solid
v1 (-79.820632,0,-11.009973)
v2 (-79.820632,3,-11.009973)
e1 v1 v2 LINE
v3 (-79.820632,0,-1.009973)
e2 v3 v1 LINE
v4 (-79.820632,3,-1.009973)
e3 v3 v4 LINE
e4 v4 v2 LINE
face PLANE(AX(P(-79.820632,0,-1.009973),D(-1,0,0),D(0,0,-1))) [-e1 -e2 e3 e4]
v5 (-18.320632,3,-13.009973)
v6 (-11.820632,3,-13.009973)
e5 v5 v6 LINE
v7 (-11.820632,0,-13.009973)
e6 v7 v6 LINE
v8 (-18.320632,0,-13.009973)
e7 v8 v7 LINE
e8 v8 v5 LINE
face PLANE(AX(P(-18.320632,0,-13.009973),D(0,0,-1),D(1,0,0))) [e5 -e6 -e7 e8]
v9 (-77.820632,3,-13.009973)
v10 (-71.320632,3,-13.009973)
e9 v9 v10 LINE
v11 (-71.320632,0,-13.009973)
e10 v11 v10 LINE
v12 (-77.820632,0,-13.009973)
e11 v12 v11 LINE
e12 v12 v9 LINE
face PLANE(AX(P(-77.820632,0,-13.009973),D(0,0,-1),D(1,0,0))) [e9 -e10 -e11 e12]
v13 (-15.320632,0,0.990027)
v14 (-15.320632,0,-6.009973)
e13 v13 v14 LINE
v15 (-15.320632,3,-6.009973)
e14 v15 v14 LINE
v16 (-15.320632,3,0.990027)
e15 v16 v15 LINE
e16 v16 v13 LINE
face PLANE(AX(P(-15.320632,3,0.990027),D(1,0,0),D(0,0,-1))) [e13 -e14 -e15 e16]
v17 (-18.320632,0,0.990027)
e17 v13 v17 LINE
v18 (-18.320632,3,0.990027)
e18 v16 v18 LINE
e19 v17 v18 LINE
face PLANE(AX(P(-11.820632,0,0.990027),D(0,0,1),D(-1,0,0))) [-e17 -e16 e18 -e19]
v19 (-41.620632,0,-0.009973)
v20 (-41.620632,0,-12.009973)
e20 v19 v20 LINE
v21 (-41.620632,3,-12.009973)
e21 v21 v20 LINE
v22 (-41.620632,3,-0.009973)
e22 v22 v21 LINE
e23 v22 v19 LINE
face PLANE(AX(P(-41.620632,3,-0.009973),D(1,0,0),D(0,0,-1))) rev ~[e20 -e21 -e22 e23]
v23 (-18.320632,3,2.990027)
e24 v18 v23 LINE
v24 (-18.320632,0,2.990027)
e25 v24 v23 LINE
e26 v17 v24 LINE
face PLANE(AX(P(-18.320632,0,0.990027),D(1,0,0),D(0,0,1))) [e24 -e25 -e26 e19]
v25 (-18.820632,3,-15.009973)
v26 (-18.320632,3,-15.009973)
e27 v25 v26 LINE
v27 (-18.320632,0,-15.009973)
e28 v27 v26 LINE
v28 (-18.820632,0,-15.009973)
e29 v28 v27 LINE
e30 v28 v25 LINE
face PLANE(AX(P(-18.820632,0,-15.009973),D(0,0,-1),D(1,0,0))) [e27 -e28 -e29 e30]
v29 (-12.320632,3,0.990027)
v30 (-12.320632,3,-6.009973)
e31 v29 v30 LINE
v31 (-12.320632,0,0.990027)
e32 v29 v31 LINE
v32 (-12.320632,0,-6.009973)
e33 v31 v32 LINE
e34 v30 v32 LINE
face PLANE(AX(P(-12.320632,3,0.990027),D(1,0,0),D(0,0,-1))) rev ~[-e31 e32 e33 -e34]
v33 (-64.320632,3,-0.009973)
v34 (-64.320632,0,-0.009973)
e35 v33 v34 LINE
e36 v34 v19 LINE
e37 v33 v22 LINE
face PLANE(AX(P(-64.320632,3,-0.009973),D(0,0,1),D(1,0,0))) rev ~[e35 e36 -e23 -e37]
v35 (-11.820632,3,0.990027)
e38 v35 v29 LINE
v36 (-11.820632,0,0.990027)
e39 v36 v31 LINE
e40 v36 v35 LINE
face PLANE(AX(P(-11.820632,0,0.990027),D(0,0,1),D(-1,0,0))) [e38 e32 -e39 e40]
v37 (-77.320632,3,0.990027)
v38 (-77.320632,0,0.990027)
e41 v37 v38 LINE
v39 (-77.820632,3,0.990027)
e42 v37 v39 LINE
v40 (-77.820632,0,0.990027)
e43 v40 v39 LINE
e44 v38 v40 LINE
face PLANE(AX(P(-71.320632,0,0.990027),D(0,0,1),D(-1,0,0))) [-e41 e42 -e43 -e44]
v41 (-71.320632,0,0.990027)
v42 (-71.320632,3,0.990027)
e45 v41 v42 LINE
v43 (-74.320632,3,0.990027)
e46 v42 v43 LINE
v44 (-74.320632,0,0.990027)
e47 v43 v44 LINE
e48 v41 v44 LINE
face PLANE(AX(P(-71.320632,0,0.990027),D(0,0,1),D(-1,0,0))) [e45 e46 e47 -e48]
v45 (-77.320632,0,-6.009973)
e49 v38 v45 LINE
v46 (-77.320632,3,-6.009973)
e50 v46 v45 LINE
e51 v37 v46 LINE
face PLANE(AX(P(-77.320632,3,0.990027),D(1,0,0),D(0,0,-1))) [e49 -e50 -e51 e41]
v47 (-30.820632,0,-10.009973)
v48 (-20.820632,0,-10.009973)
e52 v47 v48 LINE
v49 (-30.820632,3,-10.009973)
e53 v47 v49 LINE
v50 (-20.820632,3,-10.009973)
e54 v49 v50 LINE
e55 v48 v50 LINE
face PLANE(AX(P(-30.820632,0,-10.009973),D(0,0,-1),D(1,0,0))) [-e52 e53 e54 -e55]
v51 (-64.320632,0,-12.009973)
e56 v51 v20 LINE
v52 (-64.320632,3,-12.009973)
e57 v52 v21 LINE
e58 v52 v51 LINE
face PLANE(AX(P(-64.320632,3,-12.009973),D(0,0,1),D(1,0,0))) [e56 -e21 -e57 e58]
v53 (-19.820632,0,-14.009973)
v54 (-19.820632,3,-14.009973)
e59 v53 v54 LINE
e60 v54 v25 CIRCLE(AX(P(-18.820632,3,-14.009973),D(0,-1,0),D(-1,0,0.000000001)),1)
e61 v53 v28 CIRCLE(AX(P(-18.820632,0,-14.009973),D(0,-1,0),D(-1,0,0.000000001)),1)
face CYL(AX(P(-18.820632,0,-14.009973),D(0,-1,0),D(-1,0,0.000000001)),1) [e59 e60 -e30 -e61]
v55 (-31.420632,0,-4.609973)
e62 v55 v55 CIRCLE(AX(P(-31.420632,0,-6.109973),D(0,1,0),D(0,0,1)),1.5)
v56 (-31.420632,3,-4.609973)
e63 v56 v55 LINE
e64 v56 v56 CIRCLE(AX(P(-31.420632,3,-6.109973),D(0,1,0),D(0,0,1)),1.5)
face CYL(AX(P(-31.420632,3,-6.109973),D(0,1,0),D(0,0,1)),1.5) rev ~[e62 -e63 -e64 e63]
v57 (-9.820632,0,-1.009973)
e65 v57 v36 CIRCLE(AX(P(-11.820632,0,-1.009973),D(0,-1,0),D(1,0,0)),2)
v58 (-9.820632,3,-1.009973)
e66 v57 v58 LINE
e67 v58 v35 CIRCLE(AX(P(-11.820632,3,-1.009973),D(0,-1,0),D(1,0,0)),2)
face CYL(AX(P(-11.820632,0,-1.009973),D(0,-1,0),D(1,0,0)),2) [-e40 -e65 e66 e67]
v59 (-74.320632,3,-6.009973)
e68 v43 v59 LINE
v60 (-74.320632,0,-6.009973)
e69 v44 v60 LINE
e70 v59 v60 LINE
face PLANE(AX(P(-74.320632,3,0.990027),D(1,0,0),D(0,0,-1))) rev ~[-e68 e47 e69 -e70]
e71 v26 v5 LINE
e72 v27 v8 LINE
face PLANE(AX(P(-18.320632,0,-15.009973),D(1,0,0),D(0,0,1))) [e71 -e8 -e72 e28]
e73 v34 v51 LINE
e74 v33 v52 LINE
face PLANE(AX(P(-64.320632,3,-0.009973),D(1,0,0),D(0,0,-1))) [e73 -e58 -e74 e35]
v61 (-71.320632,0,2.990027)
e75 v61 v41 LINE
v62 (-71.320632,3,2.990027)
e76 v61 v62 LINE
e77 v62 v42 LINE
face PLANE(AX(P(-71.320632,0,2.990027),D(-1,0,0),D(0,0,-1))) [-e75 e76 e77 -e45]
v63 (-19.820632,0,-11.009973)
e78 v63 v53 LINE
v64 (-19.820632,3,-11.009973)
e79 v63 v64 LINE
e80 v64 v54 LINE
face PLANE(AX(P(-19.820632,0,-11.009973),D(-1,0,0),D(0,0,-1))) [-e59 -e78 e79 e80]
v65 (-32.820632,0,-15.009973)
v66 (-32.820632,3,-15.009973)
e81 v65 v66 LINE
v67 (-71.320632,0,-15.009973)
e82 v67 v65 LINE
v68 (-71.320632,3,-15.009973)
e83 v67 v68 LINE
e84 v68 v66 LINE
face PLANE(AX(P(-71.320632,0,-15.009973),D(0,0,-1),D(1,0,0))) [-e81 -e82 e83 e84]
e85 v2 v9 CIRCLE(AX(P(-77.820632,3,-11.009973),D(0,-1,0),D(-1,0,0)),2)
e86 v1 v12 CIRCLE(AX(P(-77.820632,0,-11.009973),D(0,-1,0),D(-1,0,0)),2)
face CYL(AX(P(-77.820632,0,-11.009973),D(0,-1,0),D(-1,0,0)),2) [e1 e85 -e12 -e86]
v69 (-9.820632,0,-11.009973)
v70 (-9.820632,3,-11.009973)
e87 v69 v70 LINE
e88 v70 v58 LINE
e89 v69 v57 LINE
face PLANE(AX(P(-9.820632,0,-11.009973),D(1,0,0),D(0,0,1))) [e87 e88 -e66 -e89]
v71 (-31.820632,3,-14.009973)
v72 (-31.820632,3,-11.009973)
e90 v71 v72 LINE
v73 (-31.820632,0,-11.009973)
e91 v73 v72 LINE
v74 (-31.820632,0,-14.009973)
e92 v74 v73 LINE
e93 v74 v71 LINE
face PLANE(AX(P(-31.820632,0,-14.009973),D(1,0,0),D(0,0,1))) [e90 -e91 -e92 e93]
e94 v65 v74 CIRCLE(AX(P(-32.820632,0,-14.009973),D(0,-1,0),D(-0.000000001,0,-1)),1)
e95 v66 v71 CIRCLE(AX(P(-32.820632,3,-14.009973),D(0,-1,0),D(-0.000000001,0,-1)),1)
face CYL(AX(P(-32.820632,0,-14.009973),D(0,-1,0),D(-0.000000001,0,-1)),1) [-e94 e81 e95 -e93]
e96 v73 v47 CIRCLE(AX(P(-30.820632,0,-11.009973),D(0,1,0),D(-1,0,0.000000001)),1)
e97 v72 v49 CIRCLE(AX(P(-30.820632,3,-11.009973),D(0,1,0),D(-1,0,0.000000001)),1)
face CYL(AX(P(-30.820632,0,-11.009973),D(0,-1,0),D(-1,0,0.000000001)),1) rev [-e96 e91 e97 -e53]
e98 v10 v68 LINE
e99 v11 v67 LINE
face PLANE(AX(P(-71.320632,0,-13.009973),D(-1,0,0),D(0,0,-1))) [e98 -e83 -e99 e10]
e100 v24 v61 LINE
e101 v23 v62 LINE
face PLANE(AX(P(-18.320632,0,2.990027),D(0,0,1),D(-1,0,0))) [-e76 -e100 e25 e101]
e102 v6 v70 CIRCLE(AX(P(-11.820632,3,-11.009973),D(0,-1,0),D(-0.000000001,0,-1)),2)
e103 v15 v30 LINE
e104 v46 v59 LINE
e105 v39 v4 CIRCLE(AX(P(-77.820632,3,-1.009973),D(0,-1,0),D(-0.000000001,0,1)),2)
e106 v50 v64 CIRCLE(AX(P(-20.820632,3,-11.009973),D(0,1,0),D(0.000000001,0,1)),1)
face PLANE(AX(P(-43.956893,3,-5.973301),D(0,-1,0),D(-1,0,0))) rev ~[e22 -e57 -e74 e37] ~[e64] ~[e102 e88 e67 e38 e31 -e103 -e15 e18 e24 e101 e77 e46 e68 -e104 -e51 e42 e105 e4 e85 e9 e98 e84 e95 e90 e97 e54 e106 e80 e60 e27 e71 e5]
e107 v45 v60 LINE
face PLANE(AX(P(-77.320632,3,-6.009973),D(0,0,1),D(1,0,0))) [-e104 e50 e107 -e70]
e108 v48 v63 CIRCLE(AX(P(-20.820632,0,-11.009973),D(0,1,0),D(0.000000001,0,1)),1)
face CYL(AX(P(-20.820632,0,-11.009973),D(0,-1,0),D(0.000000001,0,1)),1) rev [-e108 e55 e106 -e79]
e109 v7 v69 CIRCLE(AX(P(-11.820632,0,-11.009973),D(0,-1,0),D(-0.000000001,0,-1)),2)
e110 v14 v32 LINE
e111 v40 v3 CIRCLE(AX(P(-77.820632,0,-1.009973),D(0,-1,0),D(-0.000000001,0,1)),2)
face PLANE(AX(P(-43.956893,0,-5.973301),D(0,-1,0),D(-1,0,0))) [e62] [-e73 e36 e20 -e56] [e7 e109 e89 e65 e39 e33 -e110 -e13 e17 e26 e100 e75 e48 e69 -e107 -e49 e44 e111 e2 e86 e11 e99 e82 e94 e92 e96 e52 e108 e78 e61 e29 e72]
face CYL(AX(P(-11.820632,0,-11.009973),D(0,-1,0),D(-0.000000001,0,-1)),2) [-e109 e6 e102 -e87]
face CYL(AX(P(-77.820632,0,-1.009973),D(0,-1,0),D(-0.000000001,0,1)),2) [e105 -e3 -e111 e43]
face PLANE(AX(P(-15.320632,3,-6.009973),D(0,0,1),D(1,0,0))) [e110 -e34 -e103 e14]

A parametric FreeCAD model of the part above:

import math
import FreeCAD as App
import Part
import Sketcher

V = App.Vector


def add_polygon(sketch, points):
    """Adds a closed chain of lines whose ends are joined by coincident constraints."""
    first, n = sketch.GeometryCount, len(points)
    for a, b in zip(points, points[1:] + points[:1]):
        sketch.addGeometry(Part.LineSegment(App.Vector(*a, 0), App.Vector(*b, 0)), False)
    for i in range(n):
        sketch.addConstraint(Sketcher.Constraint("Coincident", first + i, 2, first + (i + 1) % n, 1))

doc = App.newDocument("Part")
body = doc.addObject("PartDesign::Body", "Body")

sketch1 = body.newObject("Sketcher::SketchObject", "Sketch")
sketch1.AttachmentSupport = (doc.getObject("XZ_Plane"), [""])
sketch1.MapMode = "FlatFace"
sketch1.addGeometry([
    Part.LineSegment(V(-9.8, -1, 0), V(-9.8, -11, 0)),
    Part.ArcOfCircle(Part.Circle(V(-11.8, -11, 0), V(0, 0, 1), 2), math.radians(-90), math.radians(0)),
    Part.LineSegment(V(-11.8, -13, 0), V(-18.3, -13, 0)),
    Part.LineSegment(V(-18.3, -13, 0), V(-18.3, -15, 0)),
    Part.LineSegment(V(-18.3, -15, 0), V(-18.8, -15, 0)),
    Part.ArcOfCircle(Part.Circle(V(-18.8, -14, 0), V(0, 0, 1), 1), math.radians(180), math.radians(270)),
    Part.LineSegment(V(-19.8, -14, 0), V(-19.8, -11, 0)),
    Part.ArcOfCircle(Part.Circle(V(-20.8, -11, 0), V(0, 0, 1), 1), math.radians(0), math.radians(90)),
    Part.LineSegment(V(-20.8, -10, 0), V(-30.8, -10, 0)),
    Part.ArcOfCircle(Part.Circle(V(-30.8, -11, 0), V(0, 0, 1), 1), math.radians(90), math.radians(180)),
    Part.LineSegment(V(-31.8, -11, 0), V(-31.8, -14, 0)),
    Part.ArcOfCircle(Part.Circle(V(-32.8, -14, 0), V(0, 0, 1), 1), math.radians(-90), math.radians(0)),
    Part.LineSegment(V(-32.8, -15, 0), V(-71.3, -15, 0)),
    Part.LineSegment(V(-71.3, -15, 0), V(-71.3, -13, 0)),
    Part.LineSegment(V(-71.3, -13, 0), V(-77.8, -13, 0)),
    Part.ArcOfCircle(Part.Circle(V(-77.8, -11, 0), V(0, 0, 1), 2), math.radians(180), math.radians(270)),
    Part.LineSegment(V(-79.8, -11, 0), V(-79.8, -1, 0)),
    Part.ArcOfCircle(Part.Circle(V(-77.8, -1, 0), V(0, 0, 1), 2), math.radians(90), math.radians(180)),
    Part.LineSegment(V(-77.8, 1, 0), V(-71.3, 1, 0)),
    Part.LineSegment(V(-71.3, 1, 0), V(-71.3, 3, 0)),
    Part.LineSegment(V(-71.3, 3, 0), V(-18.3, 3, 0)),
    Part.LineSegment(V(-18.3, 3, 0), V(-18.3, 1, 0)),
    Part.LineSegment(V(-18.3, 1, 0), V(-11.8, 1, 0)),
    Part.ArcOfCircle(Part.Circle(V(-11.8, -1, 0), V(0, 0, 1), 2), math.radians(0), math.radians(90)),
], False)
sketch1.addConstraint([
    Sketcher.Constraint("Tangent", 0, 2, 1, 2),
    Sketcher.Constraint("Tangent", 1, 1, 2, 1),
    Sketcher.Constraint("Coincident", 2, 2, 3, 1),
    Sketcher.Constraint("Coincident", 3, 2, 4, 1),
    Sketcher.Constraint("Tangent", 4, 2, 5, 2),
    Sketcher.Constraint("Tangent", 5, 1, 6, 1),
    Sketcher.Constraint("Tangent", 6, 2, 7, 1),
    Sketcher.Constraint("Tangent", 7, 2, 8, 1),
    Sketcher.Constraint("Tangent", 8, 2, 9, 1),
    Sketcher.Constraint("Tangent", 9, 2, 10, 1),
    Sketcher.Constraint("Tangent", 10, 2, 11, 2),
    Sketcher.Constraint("Tangent", 11, 1, 12, 1),
    Sketcher.Constraint("Coincident", 12, 2, 13, 1),
    Sketcher.Constraint("Coincident", 13, 2, 14, 1),
    Sketcher.Constraint("Tangent", 14, 2, 15, 2),
    Sketcher.Constraint("Tangent", 15, 1, 16, 1),
    Sketcher.Constraint("Tangent", 16, 2, 17, 2),
    Sketcher.Constraint("Tangent", 17, 1, 18, 1),
    Sketcher.Constraint("Coincident", 18, 2, 19, 1),
    Sketcher.Constraint("Coincident", 19, 2, 20, 1),
    Sketcher.Constraint("Coincident", 20, 2, 21, 1),
    Sketcher.Constraint("Coincident", 21, 2, 22, 1),
    Sketcher.Constraint("Tangent", 22, 2, 23, 2),
    Sketcher.Constraint("Tangent", 23, 1, 0, 1),
    Sketcher.Constraint("Vertical", 0),
    Sketcher.Constraint("Horizontal", 2),
    Sketcher.Constraint("Vertical", 3),
    Sketcher.Constraint("Horizontal", 4),
    Sketcher.Constraint("Vertical", 6),
    Sketcher.Constraint("Horizontal", 8),
    Sketcher.Constraint("Vertical", 10),
    Sketcher.Constraint("Horizontal", 12),
    Sketcher.Constraint("Vertical", 13),
    Sketcher.Constraint("Horizontal", 14),
    Sketcher.Constraint("Vertical", 16),
    Sketcher.Constraint("Horizontal", 18),
    Sketcher.Constraint("Vertical", 19),
    Sketcher.Constraint("Horizontal", 20),
    Sketcher.Constraint("Vertical", 21),
    Sketcher.Constraint("Horizontal", 22),
    Sketcher.Constraint("Equal", 5, 7),
    Sketcher.Constraint("Equal", 7, 9),
    Sketcher.Constraint("Equal", 9, 11),
    Sketcher.Constraint("Equal", 1, 15),
    Sketcher.Constraint("Equal", 15, 17),
    Sketcher.Constraint("Equal", 17, 23),
    Sketcher.Constraint("Horizontal", 1, 3, 7, 3),
    Sketcher.Constraint("Horizontal", 5, 3, 11, 3),
    Sketcher.Constraint("Horizontal", 9, 3, 15, 3),
    Sketcher.Constraint("Horizontal", 17, 3, 23, 3),
    Sketcher.Constraint("Vertical", 13, 2, 18, 2),
    Sketcher.Constraint("Vertical", 3, 2, 20, 2),
    Sketcher.Constraint("Equal", 2, 14),
    Sketcher.Constraint("Equal", 8, 0),
    Sketcher.Constraint("Equal", 13, 19),
    Sketcher.Constraint("Radius", 1, 2.0),
    Sketcher.Constraint("Radius", 5, 1.0),
    Sketcher.Constraint("DistanceX", 8, 2, 8, 1, 10.0),
    Sketcher.Constraint("DistanceX", 20, 1, 20, 2, 53.0),
    Sketcher.Constraint("DistanceY", 3, 2, 3, 1, 2.0),
    Sketcher.Constraint("DistanceX", 2, 2, 2, 1, 6.5),
    Sketcher.Constraint("DistanceX", 4, 2, 4, 1, 0.5),
    Sketcher.Constraint("DistanceX", 1, 3, -1, 1, 11.820632),
    Sketcher.Constraint("DistanceY", 1, 3, -1, 1, 11.009973),
])
pad1 = body.newObject("PartDesign::Pad", "Pad")
pad1.Profile = sketch1
pad1.Length = 3
pad1.Reversed = True

sketch2 = body.newObject("Sketcher::SketchObject", "Sketch001")
sketch2.AttachmentSupport = (doc.getObject("XZ_Plane"), [""])
sketch2.MapMode = "FlatFace"
sketch2.AttachmentOffset = App.Placement(V(0, 0, -3), App.Rotation())
add_polygon(sketch2, [(-64, -12), (-64, 0), (-42, 0), (-42, -12)])
sketch2.addConstraint([
    Sketcher.Constraint("Vertical", 0),
    Sketcher.Constraint("Horizontal", 1),
    Sketcher.Constraint("Vertical", 2),
    Sketcher.Constraint("Horizontal", 3),
    Sketcher.Constraint("DistanceY", 0, 1, 0, 2, 12.0),
    Sketcher.Constraint("DistanceX", 1, 1, 1, 2, 22.7),
    Sketcher.Constraint("DistanceX", 0, 2, -1, 1, 64.320632),
    Sketcher.Constraint("DistanceY", 0, 2, -1, 1, 0.009973),
])
pocket1 = body.newObject("PartDesign::Pocket", "Pocket")
pocket1.Profile = sketch2
pocket1.Length = 3
pocket1.Reversed = True

sketch3 = body.newObject("Sketcher::SketchObject", "Sketch002")
sketch3.AttachmentSupport = (doc.getObject("XZ_Plane"), [""])
sketch3.MapMode = "FlatFace"
sketch3.AttachmentOffset = App.Placement(V(0, 0, -3), App.Rotation())
add_polygon(sketch3, [(-15.3, -6), (-15.3, 1), (-12.3, 1), (-12.3, -6)])
add_polygon(sketch3, [(-77.3, -6), (-77.3, 1), (-74.3, 1), (-74.3, -6)])
sketch3.addConstraint([
    Sketcher.Constraint("Vertical", 0),
    Sketcher.Constraint("Horizontal", 1),
    Sketcher.Constraint("Vertical", 2),
    Sketcher.Constraint("Horizontal", 3),
    Sketcher.Constraint("Vertical", 4),
    Sketcher.Constraint("Horizontal", 5),
    Sketcher.Constraint("Vertical", 6),
    Sketcher.Constraint("Horizontal", 7),
    Sketcher.Constraint("Horizontal", 1, 2, 4, 2),
    Sketcher.Constraint("Horizontal", 3, 2, 6, 2),
    Sketcher.Constraint("Equal", 3, 5),
    Sketcher.Constraint("DistanceX", 1, 1, 1, 2, 3.0),
    Sketcher.Constraint("DistanceY", 0, 1, 0, 2, 7.0),
    Sketcher.Constraint("DistanceX", 4, 2, 0, 2, 62.0),
    Sketcher.Constraint("DistanceX", 0, 2, -1, 1, 15.320632),
    Sketcher.Constraint("DistanceY", -1, 1, 0, 2, 0.990027),
])
pocket2 = body.newObject("PartDesign::Pocket", "Pocket001")
pocket2.Profile = sketch3
pocket2.Length = 3
pocket2.Reversed = True

sketch4 = body.newObject("Sketcher::SketchObject", "Sketch003")
sketch4.AttachmentSupport = (doc.getObject("XZ_Plane"), [""])
sketch4.MapMode = "FlatFace"
sketch4.AttachmentOffset = App.Placement(V(0, 0, -3), App.Rotation())
sketch4.addGeometry(Part.Circle(V(-31.4, -6.1, 0), V(0, 0, 1), 1.5), False)
sketch4.addConstraint([
    Sketcher.Constraint("Diameter", 0, 3.0),
    Sketcher.Constraint("DistanceX", 0, 3, -1, 1, 31.420632),
    Sketcher.Constraint("DistanceY", 0, 3, -1, 1, 6.109973),
])
pocket3 = body.newObject("PartDesign::Pocket", "Pocket002")
pocket3.Profile = sketch4
pocket3.Length = 3
pocket3.Reversed = True

doc.recompute()
